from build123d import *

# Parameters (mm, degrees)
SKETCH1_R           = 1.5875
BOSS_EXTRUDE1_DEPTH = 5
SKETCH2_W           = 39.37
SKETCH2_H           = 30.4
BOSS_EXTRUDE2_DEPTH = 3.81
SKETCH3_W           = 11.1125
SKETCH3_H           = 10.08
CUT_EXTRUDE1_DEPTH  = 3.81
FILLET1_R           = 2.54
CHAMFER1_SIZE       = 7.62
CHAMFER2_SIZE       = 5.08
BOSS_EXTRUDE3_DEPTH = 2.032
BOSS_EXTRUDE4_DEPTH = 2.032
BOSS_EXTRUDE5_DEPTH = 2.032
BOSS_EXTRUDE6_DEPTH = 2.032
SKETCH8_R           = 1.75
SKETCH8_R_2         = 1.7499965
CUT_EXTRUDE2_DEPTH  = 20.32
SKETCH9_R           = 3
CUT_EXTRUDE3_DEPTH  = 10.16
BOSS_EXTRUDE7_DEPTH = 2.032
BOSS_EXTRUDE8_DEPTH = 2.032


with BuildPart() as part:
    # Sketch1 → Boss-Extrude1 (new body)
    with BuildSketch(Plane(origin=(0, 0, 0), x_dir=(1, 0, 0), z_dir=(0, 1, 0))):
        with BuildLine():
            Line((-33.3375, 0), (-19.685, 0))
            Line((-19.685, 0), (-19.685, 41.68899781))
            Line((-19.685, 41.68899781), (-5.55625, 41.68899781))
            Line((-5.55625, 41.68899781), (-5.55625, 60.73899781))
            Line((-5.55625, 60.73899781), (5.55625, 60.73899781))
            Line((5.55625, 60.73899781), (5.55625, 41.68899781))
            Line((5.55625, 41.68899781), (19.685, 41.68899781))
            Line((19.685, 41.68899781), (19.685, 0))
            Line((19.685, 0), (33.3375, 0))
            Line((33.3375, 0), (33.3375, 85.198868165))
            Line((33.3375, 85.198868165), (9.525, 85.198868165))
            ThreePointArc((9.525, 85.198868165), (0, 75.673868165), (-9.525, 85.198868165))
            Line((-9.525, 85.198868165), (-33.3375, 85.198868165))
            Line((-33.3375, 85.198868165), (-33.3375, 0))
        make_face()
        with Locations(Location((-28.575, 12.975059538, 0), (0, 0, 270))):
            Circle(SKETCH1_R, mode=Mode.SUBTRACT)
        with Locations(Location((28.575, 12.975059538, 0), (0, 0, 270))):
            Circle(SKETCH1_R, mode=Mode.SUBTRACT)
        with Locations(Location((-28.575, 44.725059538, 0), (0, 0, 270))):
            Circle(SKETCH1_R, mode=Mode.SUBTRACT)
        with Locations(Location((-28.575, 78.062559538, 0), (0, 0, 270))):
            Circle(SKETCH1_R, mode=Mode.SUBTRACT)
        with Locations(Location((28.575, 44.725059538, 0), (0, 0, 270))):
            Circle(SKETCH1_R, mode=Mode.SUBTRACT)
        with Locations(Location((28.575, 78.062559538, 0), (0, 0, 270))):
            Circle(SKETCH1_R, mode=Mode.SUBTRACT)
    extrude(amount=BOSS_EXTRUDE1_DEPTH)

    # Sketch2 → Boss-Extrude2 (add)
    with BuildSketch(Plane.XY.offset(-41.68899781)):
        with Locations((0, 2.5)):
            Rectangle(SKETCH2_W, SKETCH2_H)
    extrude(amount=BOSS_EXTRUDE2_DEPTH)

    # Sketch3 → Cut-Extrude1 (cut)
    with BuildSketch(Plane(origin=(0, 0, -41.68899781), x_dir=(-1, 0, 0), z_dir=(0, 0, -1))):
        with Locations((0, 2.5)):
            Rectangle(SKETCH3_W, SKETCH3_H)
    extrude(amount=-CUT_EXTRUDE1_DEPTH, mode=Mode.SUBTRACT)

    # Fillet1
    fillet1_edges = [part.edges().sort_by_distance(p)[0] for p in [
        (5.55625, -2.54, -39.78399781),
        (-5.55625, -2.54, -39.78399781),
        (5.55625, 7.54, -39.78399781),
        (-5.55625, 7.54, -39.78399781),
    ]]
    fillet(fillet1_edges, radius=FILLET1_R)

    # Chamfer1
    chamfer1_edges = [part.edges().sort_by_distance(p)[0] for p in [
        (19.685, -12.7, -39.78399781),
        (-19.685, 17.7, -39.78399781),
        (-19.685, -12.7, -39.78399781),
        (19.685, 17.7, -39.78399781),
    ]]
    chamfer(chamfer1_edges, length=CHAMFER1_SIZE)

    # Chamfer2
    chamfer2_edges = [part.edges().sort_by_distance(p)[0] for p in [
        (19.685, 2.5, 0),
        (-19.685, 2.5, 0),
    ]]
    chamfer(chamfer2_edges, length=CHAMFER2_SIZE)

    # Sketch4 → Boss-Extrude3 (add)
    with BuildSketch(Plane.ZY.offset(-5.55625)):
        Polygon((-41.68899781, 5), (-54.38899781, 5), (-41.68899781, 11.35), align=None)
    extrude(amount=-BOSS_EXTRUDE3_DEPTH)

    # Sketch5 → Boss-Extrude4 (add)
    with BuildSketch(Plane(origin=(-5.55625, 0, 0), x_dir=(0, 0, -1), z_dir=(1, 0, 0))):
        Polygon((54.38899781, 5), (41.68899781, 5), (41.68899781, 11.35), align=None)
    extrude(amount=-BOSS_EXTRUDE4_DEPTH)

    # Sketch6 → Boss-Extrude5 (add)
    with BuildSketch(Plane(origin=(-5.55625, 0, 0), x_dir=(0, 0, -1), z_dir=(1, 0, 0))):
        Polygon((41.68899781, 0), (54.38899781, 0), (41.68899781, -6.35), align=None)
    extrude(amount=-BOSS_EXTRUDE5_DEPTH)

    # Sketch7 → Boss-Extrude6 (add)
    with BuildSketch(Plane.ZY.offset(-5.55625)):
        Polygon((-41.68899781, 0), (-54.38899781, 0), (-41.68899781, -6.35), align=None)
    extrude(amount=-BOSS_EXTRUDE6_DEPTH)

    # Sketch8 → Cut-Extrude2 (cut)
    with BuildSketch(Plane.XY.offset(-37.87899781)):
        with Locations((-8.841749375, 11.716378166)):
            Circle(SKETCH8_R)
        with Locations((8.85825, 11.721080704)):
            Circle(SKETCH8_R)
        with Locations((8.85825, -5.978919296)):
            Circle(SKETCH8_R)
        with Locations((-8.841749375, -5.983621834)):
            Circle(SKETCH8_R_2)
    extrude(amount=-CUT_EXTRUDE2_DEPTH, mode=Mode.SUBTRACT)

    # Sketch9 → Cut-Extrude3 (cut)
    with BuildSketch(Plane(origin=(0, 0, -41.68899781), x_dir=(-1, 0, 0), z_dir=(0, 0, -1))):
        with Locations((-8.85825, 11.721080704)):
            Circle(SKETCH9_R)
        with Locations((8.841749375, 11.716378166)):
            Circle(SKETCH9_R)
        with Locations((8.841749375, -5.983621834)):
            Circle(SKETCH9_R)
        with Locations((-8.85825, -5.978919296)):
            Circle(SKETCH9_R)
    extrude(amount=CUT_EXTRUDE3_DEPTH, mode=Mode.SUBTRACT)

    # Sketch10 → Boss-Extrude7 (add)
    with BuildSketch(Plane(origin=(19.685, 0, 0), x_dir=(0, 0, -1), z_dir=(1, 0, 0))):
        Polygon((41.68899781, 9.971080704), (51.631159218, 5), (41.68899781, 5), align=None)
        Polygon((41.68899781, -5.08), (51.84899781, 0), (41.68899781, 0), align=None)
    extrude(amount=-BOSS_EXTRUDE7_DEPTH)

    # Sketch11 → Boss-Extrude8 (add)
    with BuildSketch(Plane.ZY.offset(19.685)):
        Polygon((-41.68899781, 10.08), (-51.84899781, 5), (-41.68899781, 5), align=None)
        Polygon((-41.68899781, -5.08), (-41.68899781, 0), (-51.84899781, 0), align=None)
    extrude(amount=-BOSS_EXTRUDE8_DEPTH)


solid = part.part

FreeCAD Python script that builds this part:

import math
import FreeCAD as App
import Part
import Sketcher

V = App.Vector
Q = App.Units.Quantity


def edges_at(feature, points):
    """Names of the edges that pass closest to the given points."""
    edges = feature.Shape.Edges
    near = lambda p: min(range(len(edges)), key=lambda i: edges[i].distToShape(Part.Vertex(*p))[0])
    return sorted({f"Edge{near(p) + 1}" for p in points})


def add_polygon(sketch, points):
    """Adds a closed chain of lines whose ends are joined by coincident constraints."""
    first, n = sketch.GeometryCount, len(points)
    for a, b in zip(points, points[1:] + points[:1]):
        sketch.addGeometry(Part.LineSegment(App.Vector(*a, 0), App.Vector(*b, 0)), False)
    for i in range(n):
        sketch.addConstraint(Sketcher.Constraint("Coincident", first + i, 2, first + (i + 1) % n, 1))

doc = App.newDocument("Part")
body = doc.addObject("PartDesign::Body", "Body")

# Sketch on XZ plane
sketch1 = body.newObject("Sketcher::SketchObject", "Sketch")
sketch1.AttachmentSupport = (doc.getObject("XZ_Plane"), [""])
sketch1.MapMode = "FlatFace"
sketch1.addGeometry(Part.LineSegment(V(-33.3, 0, 0), V(-19.7, 0, 0)), False)
sketch1.addGeometry(Part.LineSegment(V(-19.7, 0, 0), V(-19.7, -41.7, 0)), False)
sketch1.addGeometry(Part.LineSegment(V(-19.7, -41.7, 0), V(-5.6, -41.7, 0)), False)
sketch1.addGeometry(Part.LineSegment(V(-5.6, -41.7, 0), V(-5.6, -60.7, 0)), False)
sketch1.addGeometry(Part.LineSegment(V(-5.6, -60.7, 0), V(5.6, -60.7, 0)), False)
sketch1.addGeometry(Part.LineSegment(V(5.6, -60.7, 0), V(5.6, -41.7, 0)), False)
sketch1.addGeometry(Part.LineSegment(V(5.6, -41.7, 0), V(19.7, -41.7, 0)), False)
sketch1.addGeometry(Part.LineSegment(V(19.7, -41.7, 0), V(19.7, 0, 0)), False)
sketch1.addGeometry(Part.LineSegment(V(19.7, 0, 0), V(33.3, 0, 0)), False)
sketch1.addGeometry(Part.LineSegment(V(33.3, 0, 0), V(33.3, -85.2, 0)), False)
sketch1.addGeometry(Part.LineSegment(V(33.3, -85.2, 0), V(9.5, -85.2, 0)), False)
sketch1.addGeometry(Part.ArcOfCircle(Part.Circle(V(0, -85.2, 0), V(0, 0, 1), 9.5), math.radians(0), math.radians(180)), False)
sketch1.addGeometry(Part.LineSegment(V(-9.5, -85.2, 0), V(-33.3, -85.2, 0)), False)
sketch1.addGeometry(Part.LineSegment(V(-33.3, -85.2, 0), V(-33.3, 0, 0)), False)
sketch1.addGeometry(Part.Circle(V(-28.6, -13, 0), V(0, 0, 1), 1.6), False)
sketch1.addGeometry(Part.Circle(V(-28.6, -44.7, 0), V(0, 0, 1), 1.6), False)
sketch1.addGeometry(Part.Circle(V(28.6, -13, 0), V(0, 0, 1), 1.6), False)
sketch1.addGeometry(Part.Circle(V(28.6, -44.7, 0), V(0, 0, 1), 1.6), False)
sketch1.addGeometry(Part.Circle(V(-28.6, -78.1, 0), V(0, 0, 1), 1.6), False)
sketch1.addGeometry(Part.Circle(V(28.6, -78.1, 0), V(0, 0, 1), 1.6), False)
sketch1.addConstraint(Sketcher.Constraint("Coincident", 0, 2, 1, 1))
sketch1.addConstraint(Sketcher.Constraint("Coincident", 1, 2, 2, 1))
sketch1.addConstraint(Sketcher.Constraint("Coincident", 2, 2, 3, 1))
sketch1.addConstraint(Sketcher.Constraint("Coincident", 3, 2, 4, 1))
sketch1.addConstraint(Sketcher.Constraint("Coincident", 4, 2, 5, 1))
sketch1.addConstraint(Sketcher.Constraint("Coincident", 5, 2, 6, 1))
sketch1.addConstraint(Sketcher.Constraint("Coincident", 6, 2, 7, 1))
sketch1.addConstraint(Sketcher.Constraint("Coincident", 7, 2, 8, 1))
sketch1.addConstraint(Sketcher.Constraint("Coincident", 8, 2, 9, 1))
sketch1.addConstraint(Sketcher.Constraint("Coincident", 9, 2, 10, 1))
sketch1.addConstraint(Sketcher.Constraint("Coincident", 10, 2, 11, 1))
sketch1.addConstraint(Sketcher.Constraint("Coincident", 11, 2, 12, 1))
sketch1.addConstraint(Sketcher.Constraint("Coincident", 12, 2, 13, 1))
sketch1.addConstraint(Sketcher.Constraint("Coincident", 13, 2, 0, 1))
sketch1.addConstraint(Sketcher.Constraint("Horizontal", 0))
sketch1.addConstraint(Sketcher.Constraint("Vertical", 1))
sketch1.addConstraint(Sketcher.Constraint("Horizontal", 2))
sketch1.addConstraint(Sketcher.Constraint("Vertical", 3))
sketch1.addConstraint(Sketcher.Constraint("Horizontal", 4))
sketch1.addConstraint(Sketcher.Constraint("Vertical", 5))
sketch1.addConstraint(Sketcher.Constraint("Horizontal", 6))
sketch1.addConstraint(Sketcher.Constraint("Vertical", 7))
sketch1.addConstraint(Sketcher.Constraint("Horizontal", 8))
sketch1.addConstraint(Sketcher.Constraint("Vertical", 9))
sketch1.addConstraint(Sketcher.Constraint("Horizontal", 10))
sketch1.addConstraint(Sketcher.Constraint("Horizontal", 12))
sketch1.addConstraint(Sketcher.Constraint("Vertical", 13))
sketch1.addConstraint(Sketcher.Constraint("Equal", 14, 15))
sketch1.addConstraint(Sketcher.Constraint("Equal", 15, 16))
sketch1.addConstraint(Sketcher.Constraint("Equal", 16, 17))
sketch1.addConstraint(Sketcher.Constraint("Equal", 17, 18))
sketch1.addConstraint(Sketcher.Constraint("Equal", 18, 19))
sketch1.addConstraint(Sketcher.Constraint("Symmetric", 0, 2, 7, 2, -1, 1))
sketch1.addConstraint(Sketcher.Constraint("Symmetric", 14, 3, 16, 3, -2))
sketch1.addConstraint(Sketcher.Constraint("Symmetric", 15, 3, 17, 3, -2))
sketch1.addConstraint(Sketcher.Constraint("Symmetric", 18, 3, 19, 3, -2))
sketch1.addConstraint(Sketcher.Constraint("Symmetric", 2, 2, 5, 2, -2))
sketch1.addConstraint(Sketcher.Constraint("Symmetric", 10, 2, 11, 2, -2))
sketch1.addConstraint(Sketcher.Constraint("Symmetric", 8, 2, 13, 2, -2))
sketch1.addConstraint(Sketcher.Constraint("Horizontal", 11, 3, 9, 2))
sketch1.addConstraint(Sketcher.Constraint("Vertical", 14, 3, 15, 3))
sketch1.addConstraint(Sketcher.Constraint("Vertical", 15, 3, 18, 3))
sketch1.addConstraint(Sketcher.Constraint("Diameter", 14, Q("0.125 in")))
sketch1.addConstraint(Sketcher.Constraint("Radius", 11, Q("0.375 in")))
sketch1.addConstraint(Sketcher.Constraint("DistanceY", 3, 2, 3, 1, Q("0.75 in")))
sketch1.addConstraint(Sketcher.Constraint("DistanceX", 0, 2, 16, 3, Q("1.9 in")))
sketch1.addConstraint(Sketcher.Constraint("DistanceX", 4, 1, 4, 2, Q("0.4375 in")))
sketch1.addConstraint(Sketcher.Constraint("DistanceX", 10, 2, 10, 1, Q("0.9375 in")))
sketch1.addConstraint(Sketcher.Constraint("DistanceY", 15, 3, 14, 3, Q("1.25 in")))
sketch1.addConstraint(Sketcher.Constraint("DistanceX", 14, 3, 16, 3, Q("2.25 in")))
sketch1.addConstraint(Sketcher.Constraint("DistanceY", 18, 3, 15, 3, Q("1.3125 in")))
sketch1.addConstraint(Sketcher.Constraint("DistanceY", 9, 2, 9, 1, Q("85.198868 mm")))
sketch1.addConstraint(Sketcher.Constraint("DistanceY", 1, 2, 1, 1, Q("41.688998 mm")))
sketch1.addConstraint(Sketcher.Constraint("DistanceY", 14, 3, -1, 1, Q("12.97506 mm")))
pad1 = body.newObject("PartDesign::Pad", "Pad")
pad1.Profile = sketch1
pad1.Length = 5
pad1.Reversed = True

# Sketch on XY plane
sketch2 = body.newObject("Sketcher::SketchObject", "Sketch001")
sketch2.AttachmentSupport = (doc.getObject("XY_Plane"), [""])
sketch2.MapMode = "FlatFace"
sketch2.AttachmentOffset = App.Placement(V(0, 0, -41.688998), App.Rotation())
add_polygon(sketch2, [(-20, 18), (-20, -13), (20, -13), (20, 18)])  # lines 0-3
sketch2.addConstraint(Sketcher.Constraint("Vertical", 0))
sketch2.addConstraint(Sketcher.Constraint("Horizontal", 1))
sketch2.addConstraint(Sketcher.Constraint("Vertical", 2))
sketch2.addConstraint(Sketcher.Constraint("Horizontal", 3))
sketch2.addConstraint(Sketcher.Constraint("DistanceX", 1, 1, 1, 2, Q("1.55 in")))
sketch2.addConstraint(Sketcher.Constraint("DistanceY", 0, 2, -1, 1, Q("0.5 in")))
sketch2.addConstraint(Sketcher.Constraint("DistanceX", 0, 2, -1, 1, Q("0.775 in")))
sketch2.addConstraint(Sketcher.Constraint("DistanceY", 0, 2, 0, 1, Q("30.4 mm")))
pad2 = body.newObject("PartDesign::Pad", "Pad001")
pad2.Profile = sketch2
pad2.Length = Q("0.15 in")

# Sketch on XY plane
sketch3 = body.newObject("Sketcher::SketchObject", "Sketch002")
sketch3.AttachmentSupport = (doc.getObject("XY_Plane"), [""])
sketch3.MapMode = "FlatFace"
sketch3.AttachmentOffset = App.Placement(V(0, 0, -41.688998), App.Rotation())
add_polygon(sketch3, [(6, 8), (6, -3), (-6, -3), (-6, 8)])  # lines 0-3
sketch3.addConstraint(Sketcher.Constraint("Vertical", 0))
sketch3.addConstraint(Sketcher.Constraint("Horizontal", 1))
sketch3.addConstraint(Sketcher.Constraint("Vertical", 2))
sketch3.addConstraint(Sketcher.Constraint("Horizontal", 3))
sketch3.addConstraint(Sketcher.Constraint("DistanceY", 0, 2, -1, 1, Q("0.1 in")))
sketch3.addConstraint(Sketcher.Constraint("DistanceX", 1, 2, 1, 1, Q("0.4375 in")))
sketch3.addConstraint(Sketcher.Constraint("DistanceX", -1, 1, 0, 2, Q("0.21875 in")))
sketch3.addConstraint(Sketcher.Constraint("DistanceY", 0, 2, 0, 1, Q("10.08 mm")))
pocket1 = body.newObject("PartDesign::Pocket", "Pocket")
pocket1.Profile = sketch3
pocket1.Length = Q("0.15 in")
pocket1.Reversed = True
doc.recompute()

fillet = body.newObject("PartDesign::Fillet", "Fillet")
fillet.Base = (pocket1, edges_at(pocket1, [
    (5.556, -2.54, -39.784),
    (-5.556, -2.54, -39.784),
    (5.556, 7.54, -39.784),
    (-5.556, 7.54, -39.784),
]))
fillet.Radius = Q("0.1 in")
doc.recompute()

chamfer = body.newObject("PartDesign::Chamfer", "Chamfer")
chamfer.Base = (fillet, edges_at(fillet, [
    (19.685, -12.7, -39.784),
    (-19.685, 17.7, -39.784),
    (-19.685, -12.7, -39.784),
    (19.685, 17.7, -39.784),
]))
chamfer.Size = Q("0.3 in")
doc.recompute()

chamfer2 = body.newObject("PartDesign::Chamfer", "Chamfer001")
chamfer2.Base = (chamfer, edges_at(chamfer, [(19.685, 2.5, 0), (-19.685, 2.5, 0)]))
chamfer2.Size = Q("0.2 in")

# Sketch on YZ plane
sketch4 = body.newObject("Sketcher::SketchObject", "Sketch003")
sketch4.AttachmentSupport = (doc.getObject("YZ_Plane"), [""])
sketch4.MapMode = "FlatFace"
sketch4.AttachmentOffset = App.Placement(V(0, 0, 0.21875 * 25.4), App.Rotation())
add_polygon(sketch4, [(5, -54), (5, -42), (11, -42)])  # lines 0-2
sketch4.addConstraint(Sketcher.Constraint("Vertical", 0))
sketch4.addConstraint(Sketcher.Constraint("Horizontal", 1))
sketch4.addConstraint(Sketcher.Constraint("DistanceY", 0, 1, 0, 2, Q("0.5 in")))
sketch4.addConstraint(Sketcher.Constraint("DistanceX", 1, 1, 1, 2, Q("0.25 in")))
sketch4.addConstraint(Sketcher.Constraint("DistanceX", -1, 1, 0, 2, Q("5 mm")))
sketch4.addConstraint(Sketcher.Constraint("DistanceY", 0, 2, -1, 1, Q("41.688998 mm")))
pad3 = body.newObject("PartDesign::Pad", "Pad002")
pad3.Profile = sketch4
pad3.Length = Q("0.08 in")

# Sketch on YZ plane
sketch5 = body.newObject("Sketcher::SketchObject", "Sketch004")
sketch5.AttachmentSupport = (doc.getObject("YZ_Plane"), [""])
sketch5.MapMode = "FlatFace"
sketch5.AttachmentOffset = App.Placement(V(0, 0, -0.21875 * 25.4), App.Rotation())
add_polygon(sketch5, [(5, -42), (5, -54), (11, -42)])  # lines 0-2
sketch5.addConstraint(Sketcher.Constraint("Vertical", 0))
sketch5.addConstraint(Sketcher.Constraint("Horizontal", 2))
sketch5.addConstraint(Sketcher.Constraint("DistanceY", 0, 2, 0, 1, Q("0.5 in")))
sketch5.addConstraint(Sketcher.Constraint("DistanceX", 2, 2, 2, 1, Q("0.25 in")))
sketch5.addConstraint(Sketcher.Constraint("DistanceX", -1, 1, 0, 2, Q("5 mm")))
sketch5.addConstraint(Sketcher.Constraint("DistanceY", 0, 2, -1, 1, Q("54.388998 mm")))
pad4 = body.newObject("PartDesign::Pad", "Pad003")
pad4.Profile = sketch5
pad4.Length = Q("0.08 in")
pad4.Reversed = True

# Sketch on YZ plane
sketch6 = body.newObject("Sketcher::SketchObject", "Sketch005")
sketch6.AttachmentSupport = (doc.getObject("YZ_Plane"), [""])
sketch6.MapMode = "FlatFace"
sketch6.AttachmentOffset = App.Placement(V(0, 0, -0.21875 * 25.4), App.Rotation())
add_polygon(sketch6, [(0, -54), (0, -42), (-6, -42)])  # lines 0-2
sketch6.addConstraint(Sketcher.Constraint("Vertical", 0))
sketch6.addConstraint(Sketcher.Constraint("Horizontal", 1))
sketch6.addConstraint(Sketcher.Constraint("PointOnObject", 0, 2, -2))
sketch6.addConstraint(Sketcher.Constraint("DistanceY", 0, 1, 0, 2, Q("0.5 in")))
sketch6.addConstraint(Sketcher.Constraint("DistanceX", 1, 2, 1, 1, Q("0.25 in")))
sketch6.addConstraint(Sketcher.Constraint("DistanceY", 0, 2, -1, 1, Q("41.688998 mm")))
pad5 = body.newObject("PartDesign::Pad", "Pad004")
pad5.Profile = sketch6
pad5.Length = Q("0.08 in")
pad5.Reversed = True

# Sketch on YZ plane
sketch7 = body.newObject("Sketcher::SketchObject", "Sketch006")
sketch7.AttachmentSupport = (doc.getObject("YZ_Plane"), [""])
sketch7.MapMode = "FlatFace"
sketch7.AttachmentOffset = App.Placement(V(0, 0, 0.21875 * 25.4), App.Rotation())
add_polygon(sketch7, [(0, -42), (0, -54), (-6, -42)])  # lines 0-2
sketch7.addConstraint(Sketcher.Constraint("Vertical", 0))
sketch7.addConstraint(Sketcher.Constraint("Horizontal", 2))
sketch7.addConstraint(Sketcher.Constraint("PointOnObject", 0, 2, -2))
sketch7.addConstraint(Sketcher.Constraint("DistanceY", 0, 2, 0, 1, Q("0.5 in")))
sketch7.addConstraint(Sketcher.Constraint("DistanceX", 2, 1, 2, 2, Q("0.25 in")))
sketch7.addConstraint(Sketcher.Constraint("DistanceY", 0, 2, -1, 1, Q("54.388998 mm")))
pad6 = body.newObject("PartDesign::Pad", "Pad005")
pad6.Profile = sketch7
pad6.Length = Q("0.08 in")

# Sketch on XY plane
sketch8 = body.newObject("Sketcher::SketchObject", "Sketch007")
sketch8.AttachmentSupport = (doc.getObject("XY_Plane"), [""])
sketch8.MapMode = "FlatFace"
sketch8.AttachmentOffset = App.Placement(V(0, 0, -37.878998), App.Rotation())
sketch8.addGeometry(Part.Circle(V(-8.8, 11.7, 0), V(0, 0, 1), 1.8), False)
sketch8.addGeometry(Part.Circle(V(8.9, 11.7, 0), V(0, 0, 1), 1.8), False)
sketch8.addGeometry(Part.Circle(V(8.9, -6, 0), V(0, 0, 1), 1.8), False)
sketch8.addGeometry(Part.Circle(V(-8.8, -6, 0), V(0, 0, 1), 1.7), False)
sketch8.addConstraint(Sketcher.Constraint("Equal", 0, 1))
sketch8.addConstraint(Sketcher.Constraint("Equal", 1, 2))
sketch8.addConstraint(Sketcher.Constraint("Vertical", 1, 3, 2, 3))
sketch8.addConstraint(Sketcher.Constraint("Vertical", 0, 3, 3, 3))
sketch8.addConstraint(Sketcher.Constraint("Diameter", 0, Q("3.5 mm")))
sketch8.addConstraint(Sketcher.Constraint("Diameter", 3, Q("3.499993 mm")))
sketch8.addConstraint(Sketcher.Constraint("DistanceX", 0, 3, 1, 3, Q("17.699999 mm")))
sketch8.addConstraint(Sketcher.Constraint("DistanceY", 2, 3, 1, 3, Q("17.7 mm")))
sketch8.addConstraint(Sketcher.Constraint("DistanceY", 3, 3, 0, 3, Q("17.7 mm")))
sketch8.addConstraint(Sketcher.Constraint("DistanceX", 0, 3, -1, 1, Q("8.841749 mm")))
sketch8.addConstraint(Sketcher.Constraint("DistanceY", -1, 1, 0, 3, Q("11.716378 mm")))
sketch8.addConstraint(Sketcher.Constraint("DistanceY", -1, 1, 1, 3, Q("11.721081 mm")))
pocket2 = body.newObject("PartDesign::Pocket", "Pocket001")
pocket2.Profile = sketch8
pocket2.Length = Q("0.8 in")

# Sketch on XY plane
sketch9 = body.newObject("Sketcher::SketchObject", "Sketch008")
sketch9.AttachmentSupport = (doc.getObject("XY_Plane"), [""])
sketch9.MapMode = "FlatFace"
sketch9.AttachmentOffset = App.Placement(V(0, 0, -41.688998), App.Rotation())
sketch9.addGeometry(Part.Circle(V(8.9, 11.7, 0), V(0, 0, 1), 3), False)
sketch9.addGeometry(Part.Circle(V(-8.8, 11.7, 0), V(0, 0, 1), 3), False)
sketch9.addGeometry(Part.Circle(V(-8.8, -6, 0), V(0, 0, 1), 3), False)
sketch9.addGeometry(Part.Circle(V(8.9, -6, 0), V(0, 0, 1), 3), False)
sketch9.addConstraint(Sketcher.Constraint("Equal", 0, 1))
sketch9.addConstraint(Sketcher.Constraint("Equal", 1, 2))
sketch9.addConstraint(Sketcher.Constraint("Equal", 2, 3))
sketch9.addConstraint(Sketcher.Constraint("Vertical", 1, 3, 2, 3))
sketch9.addConstraint(Sketcher.Constraint("Vertical", 0, 3, 3, 3))
sketch9.addConstraint(Sketcher.Constraint("Diameter", 0, Q("6 mm")))
sketch9.addConstraint(Sketcher.Constraint("DistanceX", 1, 3, 0, 3, Q("17.699999 mm")))
sketch9.addConstraint(Sketcher.Constraint("DistanceY", 2, 3, 1, 3, Q("17.7 mm")))
sketch9.addConstraint(Sketcher.Constraint("DistanceY", 3, 3, 0, 3, Q("17.7 mm")))
sketch9.addConstraint(Sketcher.Constraint("DistanceX", -1, 1, 0, 3, Q("8.85825 mm")))
sketch9.addConstraint(Sketcher.Constraint("DistanceY", -1, 1, 0, 3, Q("11.721081 mm")))
sketch9.addConstraint(Sketcher.Constraint("DistanceY", -1, 1, 1, 3, Q("11.716378 mm")))
pocket3 = body.newObject("PartDesign::Pocket", "Pocket002")
pocket3.Profile = sketch9
pocket3.Length = Q("0.4 in")

# Sketch on YZ plane
sketch10 = body.newObject("Sketcher::SketchObject", "Sketch009")
sketch10.AttachmentSupport = (doc.getObject("YZ_Plane"), [""])
sketch10.MapMode = "FlatFace"
sketch10.AttachmentOffset = App.Placement(V(0, 0, 0.775 * 25.4), App.Rotation())
add_polygon(sketch10, [(5, -51.6), (10, -41.7), (5, -41.7)])  # lines 0-2
add_polygon(sketch10, [(-5.1, -41.7), (0, -51.8), (0, -41.7)])  # lines 3-5
sketch10.addConstraint(Sketcher.Constraint("Horizontal", 1))
sketch10.addConstraint(Sketcher.Constraint("Vertical", 2))
sketch10.addConstraint(Sketcher.Constraint("Vertical", 4))
sketch10.addConstraint(Sketcher.Constraint("Horizontal", 5))
sketch10.addConstraint(Sketcher.Constraint("PointOnObject", 3, 2, -2))
sketch10.addConstraint(Sketcher.Constraint("Horizontal", 1, 2, 4, 2))
sketch10.addConstraint(Sketcher.Constraint("DistanceX", 5, 2, 5, 1, Q("0.2 in")))
sketch10.addConstraint(Sketcher.Constraint("DistanceY", 4, 1, 4, 2, Q("0.4 in")))
sketch10.addConstraint(Sketcher.Constraint("DistanceX", 1, 2, 1, 1, Q("4.971081 mm")))
sketch10.addConstraint(Sketcher.Constraint("DistanceY", 2, 2, 2, 1, Q("9.942161 mm")))
sketch10.addConstraint(Sketcher.Constraint("DistanceX", -1, 1, 1, 2, Q("5 mm")))
sketch10.addConstraint(Sketcher.Constraint("DistanceY", 2, 2, -1, 1, Q("51.631159 mm")))
pad7 = body.newObject("PartDesign::Pad", "Pad006")
pad7.Profile = sketch10
pad7.Length = Q("0.08 in")
pad7.Reversed = True

# Sketch on YZ plane
sketch11 = body.newObject("Sketcher::SketchObject", "Sketch010")
sketch11.AttachmentSupport = (doc.getObject("YZ_Plane"), [""])
sketch11.MapMode = "FlatFace"
sketch11.AttachmentOffset = App.Placement(V(0, 0, -0.775 * 25.4), App.Rotation())
add_polygon(sketch11, [(10, -42), (5, -52), (5, -42)])  # lines 0-2
add_polygon(sketch11, [(-5, -42), (0, -42), (0, -52)])  # lines 3-5
sketch11.addConstraint(Sketcher.Constraint("Vertical", 1))
sketch11.addConstraint(Sketcher.Constraint("Horizontal", 2))
sketch11.addConstraint(Sketcher.Constraint("Horizontal", 3))
sketch11.addConstraint(Sketcher.Constraint("Vertical", 4))
sketch11.addConstraint(Sketcher.Constraint("PointOnObject", 3, 2, -2))
sketch11.addConstraint(Sketcher.Constraint("Horizontal", 2, 2, 3, 2))
sketch11.addConstraint(Sketcher.Constraint("Horizontal", 0, 2, 4, 2))
sketch11.addConstraint(Sketcher.Constraint("Equal", 2, 3))
sketch11.addConstraint(Sketcher.Constraint("DistanceX", 2, 1, 2, 2, Q("0.2 in")))
sketch11.addConstraint(Sketcher.Constraint("DistanceY", 1, 1, 1, 2, Q("0.4 in")))
sketch11.addConstraint(Sketcher.Constraint("DistanceX", -1, 1, 0, 2, Q("5 mm")))
sketch11.addConstraint(Sketcher.Constraint("DistanceY", 0, 2, -1, 1, Q("51.848998 mm")))
pad8 = body.newObject("PartDesign::Pad", "Pad007")
pad8.Profile = sketch11
pad8.Length = Q("0.08 in")

doc.recompute()
